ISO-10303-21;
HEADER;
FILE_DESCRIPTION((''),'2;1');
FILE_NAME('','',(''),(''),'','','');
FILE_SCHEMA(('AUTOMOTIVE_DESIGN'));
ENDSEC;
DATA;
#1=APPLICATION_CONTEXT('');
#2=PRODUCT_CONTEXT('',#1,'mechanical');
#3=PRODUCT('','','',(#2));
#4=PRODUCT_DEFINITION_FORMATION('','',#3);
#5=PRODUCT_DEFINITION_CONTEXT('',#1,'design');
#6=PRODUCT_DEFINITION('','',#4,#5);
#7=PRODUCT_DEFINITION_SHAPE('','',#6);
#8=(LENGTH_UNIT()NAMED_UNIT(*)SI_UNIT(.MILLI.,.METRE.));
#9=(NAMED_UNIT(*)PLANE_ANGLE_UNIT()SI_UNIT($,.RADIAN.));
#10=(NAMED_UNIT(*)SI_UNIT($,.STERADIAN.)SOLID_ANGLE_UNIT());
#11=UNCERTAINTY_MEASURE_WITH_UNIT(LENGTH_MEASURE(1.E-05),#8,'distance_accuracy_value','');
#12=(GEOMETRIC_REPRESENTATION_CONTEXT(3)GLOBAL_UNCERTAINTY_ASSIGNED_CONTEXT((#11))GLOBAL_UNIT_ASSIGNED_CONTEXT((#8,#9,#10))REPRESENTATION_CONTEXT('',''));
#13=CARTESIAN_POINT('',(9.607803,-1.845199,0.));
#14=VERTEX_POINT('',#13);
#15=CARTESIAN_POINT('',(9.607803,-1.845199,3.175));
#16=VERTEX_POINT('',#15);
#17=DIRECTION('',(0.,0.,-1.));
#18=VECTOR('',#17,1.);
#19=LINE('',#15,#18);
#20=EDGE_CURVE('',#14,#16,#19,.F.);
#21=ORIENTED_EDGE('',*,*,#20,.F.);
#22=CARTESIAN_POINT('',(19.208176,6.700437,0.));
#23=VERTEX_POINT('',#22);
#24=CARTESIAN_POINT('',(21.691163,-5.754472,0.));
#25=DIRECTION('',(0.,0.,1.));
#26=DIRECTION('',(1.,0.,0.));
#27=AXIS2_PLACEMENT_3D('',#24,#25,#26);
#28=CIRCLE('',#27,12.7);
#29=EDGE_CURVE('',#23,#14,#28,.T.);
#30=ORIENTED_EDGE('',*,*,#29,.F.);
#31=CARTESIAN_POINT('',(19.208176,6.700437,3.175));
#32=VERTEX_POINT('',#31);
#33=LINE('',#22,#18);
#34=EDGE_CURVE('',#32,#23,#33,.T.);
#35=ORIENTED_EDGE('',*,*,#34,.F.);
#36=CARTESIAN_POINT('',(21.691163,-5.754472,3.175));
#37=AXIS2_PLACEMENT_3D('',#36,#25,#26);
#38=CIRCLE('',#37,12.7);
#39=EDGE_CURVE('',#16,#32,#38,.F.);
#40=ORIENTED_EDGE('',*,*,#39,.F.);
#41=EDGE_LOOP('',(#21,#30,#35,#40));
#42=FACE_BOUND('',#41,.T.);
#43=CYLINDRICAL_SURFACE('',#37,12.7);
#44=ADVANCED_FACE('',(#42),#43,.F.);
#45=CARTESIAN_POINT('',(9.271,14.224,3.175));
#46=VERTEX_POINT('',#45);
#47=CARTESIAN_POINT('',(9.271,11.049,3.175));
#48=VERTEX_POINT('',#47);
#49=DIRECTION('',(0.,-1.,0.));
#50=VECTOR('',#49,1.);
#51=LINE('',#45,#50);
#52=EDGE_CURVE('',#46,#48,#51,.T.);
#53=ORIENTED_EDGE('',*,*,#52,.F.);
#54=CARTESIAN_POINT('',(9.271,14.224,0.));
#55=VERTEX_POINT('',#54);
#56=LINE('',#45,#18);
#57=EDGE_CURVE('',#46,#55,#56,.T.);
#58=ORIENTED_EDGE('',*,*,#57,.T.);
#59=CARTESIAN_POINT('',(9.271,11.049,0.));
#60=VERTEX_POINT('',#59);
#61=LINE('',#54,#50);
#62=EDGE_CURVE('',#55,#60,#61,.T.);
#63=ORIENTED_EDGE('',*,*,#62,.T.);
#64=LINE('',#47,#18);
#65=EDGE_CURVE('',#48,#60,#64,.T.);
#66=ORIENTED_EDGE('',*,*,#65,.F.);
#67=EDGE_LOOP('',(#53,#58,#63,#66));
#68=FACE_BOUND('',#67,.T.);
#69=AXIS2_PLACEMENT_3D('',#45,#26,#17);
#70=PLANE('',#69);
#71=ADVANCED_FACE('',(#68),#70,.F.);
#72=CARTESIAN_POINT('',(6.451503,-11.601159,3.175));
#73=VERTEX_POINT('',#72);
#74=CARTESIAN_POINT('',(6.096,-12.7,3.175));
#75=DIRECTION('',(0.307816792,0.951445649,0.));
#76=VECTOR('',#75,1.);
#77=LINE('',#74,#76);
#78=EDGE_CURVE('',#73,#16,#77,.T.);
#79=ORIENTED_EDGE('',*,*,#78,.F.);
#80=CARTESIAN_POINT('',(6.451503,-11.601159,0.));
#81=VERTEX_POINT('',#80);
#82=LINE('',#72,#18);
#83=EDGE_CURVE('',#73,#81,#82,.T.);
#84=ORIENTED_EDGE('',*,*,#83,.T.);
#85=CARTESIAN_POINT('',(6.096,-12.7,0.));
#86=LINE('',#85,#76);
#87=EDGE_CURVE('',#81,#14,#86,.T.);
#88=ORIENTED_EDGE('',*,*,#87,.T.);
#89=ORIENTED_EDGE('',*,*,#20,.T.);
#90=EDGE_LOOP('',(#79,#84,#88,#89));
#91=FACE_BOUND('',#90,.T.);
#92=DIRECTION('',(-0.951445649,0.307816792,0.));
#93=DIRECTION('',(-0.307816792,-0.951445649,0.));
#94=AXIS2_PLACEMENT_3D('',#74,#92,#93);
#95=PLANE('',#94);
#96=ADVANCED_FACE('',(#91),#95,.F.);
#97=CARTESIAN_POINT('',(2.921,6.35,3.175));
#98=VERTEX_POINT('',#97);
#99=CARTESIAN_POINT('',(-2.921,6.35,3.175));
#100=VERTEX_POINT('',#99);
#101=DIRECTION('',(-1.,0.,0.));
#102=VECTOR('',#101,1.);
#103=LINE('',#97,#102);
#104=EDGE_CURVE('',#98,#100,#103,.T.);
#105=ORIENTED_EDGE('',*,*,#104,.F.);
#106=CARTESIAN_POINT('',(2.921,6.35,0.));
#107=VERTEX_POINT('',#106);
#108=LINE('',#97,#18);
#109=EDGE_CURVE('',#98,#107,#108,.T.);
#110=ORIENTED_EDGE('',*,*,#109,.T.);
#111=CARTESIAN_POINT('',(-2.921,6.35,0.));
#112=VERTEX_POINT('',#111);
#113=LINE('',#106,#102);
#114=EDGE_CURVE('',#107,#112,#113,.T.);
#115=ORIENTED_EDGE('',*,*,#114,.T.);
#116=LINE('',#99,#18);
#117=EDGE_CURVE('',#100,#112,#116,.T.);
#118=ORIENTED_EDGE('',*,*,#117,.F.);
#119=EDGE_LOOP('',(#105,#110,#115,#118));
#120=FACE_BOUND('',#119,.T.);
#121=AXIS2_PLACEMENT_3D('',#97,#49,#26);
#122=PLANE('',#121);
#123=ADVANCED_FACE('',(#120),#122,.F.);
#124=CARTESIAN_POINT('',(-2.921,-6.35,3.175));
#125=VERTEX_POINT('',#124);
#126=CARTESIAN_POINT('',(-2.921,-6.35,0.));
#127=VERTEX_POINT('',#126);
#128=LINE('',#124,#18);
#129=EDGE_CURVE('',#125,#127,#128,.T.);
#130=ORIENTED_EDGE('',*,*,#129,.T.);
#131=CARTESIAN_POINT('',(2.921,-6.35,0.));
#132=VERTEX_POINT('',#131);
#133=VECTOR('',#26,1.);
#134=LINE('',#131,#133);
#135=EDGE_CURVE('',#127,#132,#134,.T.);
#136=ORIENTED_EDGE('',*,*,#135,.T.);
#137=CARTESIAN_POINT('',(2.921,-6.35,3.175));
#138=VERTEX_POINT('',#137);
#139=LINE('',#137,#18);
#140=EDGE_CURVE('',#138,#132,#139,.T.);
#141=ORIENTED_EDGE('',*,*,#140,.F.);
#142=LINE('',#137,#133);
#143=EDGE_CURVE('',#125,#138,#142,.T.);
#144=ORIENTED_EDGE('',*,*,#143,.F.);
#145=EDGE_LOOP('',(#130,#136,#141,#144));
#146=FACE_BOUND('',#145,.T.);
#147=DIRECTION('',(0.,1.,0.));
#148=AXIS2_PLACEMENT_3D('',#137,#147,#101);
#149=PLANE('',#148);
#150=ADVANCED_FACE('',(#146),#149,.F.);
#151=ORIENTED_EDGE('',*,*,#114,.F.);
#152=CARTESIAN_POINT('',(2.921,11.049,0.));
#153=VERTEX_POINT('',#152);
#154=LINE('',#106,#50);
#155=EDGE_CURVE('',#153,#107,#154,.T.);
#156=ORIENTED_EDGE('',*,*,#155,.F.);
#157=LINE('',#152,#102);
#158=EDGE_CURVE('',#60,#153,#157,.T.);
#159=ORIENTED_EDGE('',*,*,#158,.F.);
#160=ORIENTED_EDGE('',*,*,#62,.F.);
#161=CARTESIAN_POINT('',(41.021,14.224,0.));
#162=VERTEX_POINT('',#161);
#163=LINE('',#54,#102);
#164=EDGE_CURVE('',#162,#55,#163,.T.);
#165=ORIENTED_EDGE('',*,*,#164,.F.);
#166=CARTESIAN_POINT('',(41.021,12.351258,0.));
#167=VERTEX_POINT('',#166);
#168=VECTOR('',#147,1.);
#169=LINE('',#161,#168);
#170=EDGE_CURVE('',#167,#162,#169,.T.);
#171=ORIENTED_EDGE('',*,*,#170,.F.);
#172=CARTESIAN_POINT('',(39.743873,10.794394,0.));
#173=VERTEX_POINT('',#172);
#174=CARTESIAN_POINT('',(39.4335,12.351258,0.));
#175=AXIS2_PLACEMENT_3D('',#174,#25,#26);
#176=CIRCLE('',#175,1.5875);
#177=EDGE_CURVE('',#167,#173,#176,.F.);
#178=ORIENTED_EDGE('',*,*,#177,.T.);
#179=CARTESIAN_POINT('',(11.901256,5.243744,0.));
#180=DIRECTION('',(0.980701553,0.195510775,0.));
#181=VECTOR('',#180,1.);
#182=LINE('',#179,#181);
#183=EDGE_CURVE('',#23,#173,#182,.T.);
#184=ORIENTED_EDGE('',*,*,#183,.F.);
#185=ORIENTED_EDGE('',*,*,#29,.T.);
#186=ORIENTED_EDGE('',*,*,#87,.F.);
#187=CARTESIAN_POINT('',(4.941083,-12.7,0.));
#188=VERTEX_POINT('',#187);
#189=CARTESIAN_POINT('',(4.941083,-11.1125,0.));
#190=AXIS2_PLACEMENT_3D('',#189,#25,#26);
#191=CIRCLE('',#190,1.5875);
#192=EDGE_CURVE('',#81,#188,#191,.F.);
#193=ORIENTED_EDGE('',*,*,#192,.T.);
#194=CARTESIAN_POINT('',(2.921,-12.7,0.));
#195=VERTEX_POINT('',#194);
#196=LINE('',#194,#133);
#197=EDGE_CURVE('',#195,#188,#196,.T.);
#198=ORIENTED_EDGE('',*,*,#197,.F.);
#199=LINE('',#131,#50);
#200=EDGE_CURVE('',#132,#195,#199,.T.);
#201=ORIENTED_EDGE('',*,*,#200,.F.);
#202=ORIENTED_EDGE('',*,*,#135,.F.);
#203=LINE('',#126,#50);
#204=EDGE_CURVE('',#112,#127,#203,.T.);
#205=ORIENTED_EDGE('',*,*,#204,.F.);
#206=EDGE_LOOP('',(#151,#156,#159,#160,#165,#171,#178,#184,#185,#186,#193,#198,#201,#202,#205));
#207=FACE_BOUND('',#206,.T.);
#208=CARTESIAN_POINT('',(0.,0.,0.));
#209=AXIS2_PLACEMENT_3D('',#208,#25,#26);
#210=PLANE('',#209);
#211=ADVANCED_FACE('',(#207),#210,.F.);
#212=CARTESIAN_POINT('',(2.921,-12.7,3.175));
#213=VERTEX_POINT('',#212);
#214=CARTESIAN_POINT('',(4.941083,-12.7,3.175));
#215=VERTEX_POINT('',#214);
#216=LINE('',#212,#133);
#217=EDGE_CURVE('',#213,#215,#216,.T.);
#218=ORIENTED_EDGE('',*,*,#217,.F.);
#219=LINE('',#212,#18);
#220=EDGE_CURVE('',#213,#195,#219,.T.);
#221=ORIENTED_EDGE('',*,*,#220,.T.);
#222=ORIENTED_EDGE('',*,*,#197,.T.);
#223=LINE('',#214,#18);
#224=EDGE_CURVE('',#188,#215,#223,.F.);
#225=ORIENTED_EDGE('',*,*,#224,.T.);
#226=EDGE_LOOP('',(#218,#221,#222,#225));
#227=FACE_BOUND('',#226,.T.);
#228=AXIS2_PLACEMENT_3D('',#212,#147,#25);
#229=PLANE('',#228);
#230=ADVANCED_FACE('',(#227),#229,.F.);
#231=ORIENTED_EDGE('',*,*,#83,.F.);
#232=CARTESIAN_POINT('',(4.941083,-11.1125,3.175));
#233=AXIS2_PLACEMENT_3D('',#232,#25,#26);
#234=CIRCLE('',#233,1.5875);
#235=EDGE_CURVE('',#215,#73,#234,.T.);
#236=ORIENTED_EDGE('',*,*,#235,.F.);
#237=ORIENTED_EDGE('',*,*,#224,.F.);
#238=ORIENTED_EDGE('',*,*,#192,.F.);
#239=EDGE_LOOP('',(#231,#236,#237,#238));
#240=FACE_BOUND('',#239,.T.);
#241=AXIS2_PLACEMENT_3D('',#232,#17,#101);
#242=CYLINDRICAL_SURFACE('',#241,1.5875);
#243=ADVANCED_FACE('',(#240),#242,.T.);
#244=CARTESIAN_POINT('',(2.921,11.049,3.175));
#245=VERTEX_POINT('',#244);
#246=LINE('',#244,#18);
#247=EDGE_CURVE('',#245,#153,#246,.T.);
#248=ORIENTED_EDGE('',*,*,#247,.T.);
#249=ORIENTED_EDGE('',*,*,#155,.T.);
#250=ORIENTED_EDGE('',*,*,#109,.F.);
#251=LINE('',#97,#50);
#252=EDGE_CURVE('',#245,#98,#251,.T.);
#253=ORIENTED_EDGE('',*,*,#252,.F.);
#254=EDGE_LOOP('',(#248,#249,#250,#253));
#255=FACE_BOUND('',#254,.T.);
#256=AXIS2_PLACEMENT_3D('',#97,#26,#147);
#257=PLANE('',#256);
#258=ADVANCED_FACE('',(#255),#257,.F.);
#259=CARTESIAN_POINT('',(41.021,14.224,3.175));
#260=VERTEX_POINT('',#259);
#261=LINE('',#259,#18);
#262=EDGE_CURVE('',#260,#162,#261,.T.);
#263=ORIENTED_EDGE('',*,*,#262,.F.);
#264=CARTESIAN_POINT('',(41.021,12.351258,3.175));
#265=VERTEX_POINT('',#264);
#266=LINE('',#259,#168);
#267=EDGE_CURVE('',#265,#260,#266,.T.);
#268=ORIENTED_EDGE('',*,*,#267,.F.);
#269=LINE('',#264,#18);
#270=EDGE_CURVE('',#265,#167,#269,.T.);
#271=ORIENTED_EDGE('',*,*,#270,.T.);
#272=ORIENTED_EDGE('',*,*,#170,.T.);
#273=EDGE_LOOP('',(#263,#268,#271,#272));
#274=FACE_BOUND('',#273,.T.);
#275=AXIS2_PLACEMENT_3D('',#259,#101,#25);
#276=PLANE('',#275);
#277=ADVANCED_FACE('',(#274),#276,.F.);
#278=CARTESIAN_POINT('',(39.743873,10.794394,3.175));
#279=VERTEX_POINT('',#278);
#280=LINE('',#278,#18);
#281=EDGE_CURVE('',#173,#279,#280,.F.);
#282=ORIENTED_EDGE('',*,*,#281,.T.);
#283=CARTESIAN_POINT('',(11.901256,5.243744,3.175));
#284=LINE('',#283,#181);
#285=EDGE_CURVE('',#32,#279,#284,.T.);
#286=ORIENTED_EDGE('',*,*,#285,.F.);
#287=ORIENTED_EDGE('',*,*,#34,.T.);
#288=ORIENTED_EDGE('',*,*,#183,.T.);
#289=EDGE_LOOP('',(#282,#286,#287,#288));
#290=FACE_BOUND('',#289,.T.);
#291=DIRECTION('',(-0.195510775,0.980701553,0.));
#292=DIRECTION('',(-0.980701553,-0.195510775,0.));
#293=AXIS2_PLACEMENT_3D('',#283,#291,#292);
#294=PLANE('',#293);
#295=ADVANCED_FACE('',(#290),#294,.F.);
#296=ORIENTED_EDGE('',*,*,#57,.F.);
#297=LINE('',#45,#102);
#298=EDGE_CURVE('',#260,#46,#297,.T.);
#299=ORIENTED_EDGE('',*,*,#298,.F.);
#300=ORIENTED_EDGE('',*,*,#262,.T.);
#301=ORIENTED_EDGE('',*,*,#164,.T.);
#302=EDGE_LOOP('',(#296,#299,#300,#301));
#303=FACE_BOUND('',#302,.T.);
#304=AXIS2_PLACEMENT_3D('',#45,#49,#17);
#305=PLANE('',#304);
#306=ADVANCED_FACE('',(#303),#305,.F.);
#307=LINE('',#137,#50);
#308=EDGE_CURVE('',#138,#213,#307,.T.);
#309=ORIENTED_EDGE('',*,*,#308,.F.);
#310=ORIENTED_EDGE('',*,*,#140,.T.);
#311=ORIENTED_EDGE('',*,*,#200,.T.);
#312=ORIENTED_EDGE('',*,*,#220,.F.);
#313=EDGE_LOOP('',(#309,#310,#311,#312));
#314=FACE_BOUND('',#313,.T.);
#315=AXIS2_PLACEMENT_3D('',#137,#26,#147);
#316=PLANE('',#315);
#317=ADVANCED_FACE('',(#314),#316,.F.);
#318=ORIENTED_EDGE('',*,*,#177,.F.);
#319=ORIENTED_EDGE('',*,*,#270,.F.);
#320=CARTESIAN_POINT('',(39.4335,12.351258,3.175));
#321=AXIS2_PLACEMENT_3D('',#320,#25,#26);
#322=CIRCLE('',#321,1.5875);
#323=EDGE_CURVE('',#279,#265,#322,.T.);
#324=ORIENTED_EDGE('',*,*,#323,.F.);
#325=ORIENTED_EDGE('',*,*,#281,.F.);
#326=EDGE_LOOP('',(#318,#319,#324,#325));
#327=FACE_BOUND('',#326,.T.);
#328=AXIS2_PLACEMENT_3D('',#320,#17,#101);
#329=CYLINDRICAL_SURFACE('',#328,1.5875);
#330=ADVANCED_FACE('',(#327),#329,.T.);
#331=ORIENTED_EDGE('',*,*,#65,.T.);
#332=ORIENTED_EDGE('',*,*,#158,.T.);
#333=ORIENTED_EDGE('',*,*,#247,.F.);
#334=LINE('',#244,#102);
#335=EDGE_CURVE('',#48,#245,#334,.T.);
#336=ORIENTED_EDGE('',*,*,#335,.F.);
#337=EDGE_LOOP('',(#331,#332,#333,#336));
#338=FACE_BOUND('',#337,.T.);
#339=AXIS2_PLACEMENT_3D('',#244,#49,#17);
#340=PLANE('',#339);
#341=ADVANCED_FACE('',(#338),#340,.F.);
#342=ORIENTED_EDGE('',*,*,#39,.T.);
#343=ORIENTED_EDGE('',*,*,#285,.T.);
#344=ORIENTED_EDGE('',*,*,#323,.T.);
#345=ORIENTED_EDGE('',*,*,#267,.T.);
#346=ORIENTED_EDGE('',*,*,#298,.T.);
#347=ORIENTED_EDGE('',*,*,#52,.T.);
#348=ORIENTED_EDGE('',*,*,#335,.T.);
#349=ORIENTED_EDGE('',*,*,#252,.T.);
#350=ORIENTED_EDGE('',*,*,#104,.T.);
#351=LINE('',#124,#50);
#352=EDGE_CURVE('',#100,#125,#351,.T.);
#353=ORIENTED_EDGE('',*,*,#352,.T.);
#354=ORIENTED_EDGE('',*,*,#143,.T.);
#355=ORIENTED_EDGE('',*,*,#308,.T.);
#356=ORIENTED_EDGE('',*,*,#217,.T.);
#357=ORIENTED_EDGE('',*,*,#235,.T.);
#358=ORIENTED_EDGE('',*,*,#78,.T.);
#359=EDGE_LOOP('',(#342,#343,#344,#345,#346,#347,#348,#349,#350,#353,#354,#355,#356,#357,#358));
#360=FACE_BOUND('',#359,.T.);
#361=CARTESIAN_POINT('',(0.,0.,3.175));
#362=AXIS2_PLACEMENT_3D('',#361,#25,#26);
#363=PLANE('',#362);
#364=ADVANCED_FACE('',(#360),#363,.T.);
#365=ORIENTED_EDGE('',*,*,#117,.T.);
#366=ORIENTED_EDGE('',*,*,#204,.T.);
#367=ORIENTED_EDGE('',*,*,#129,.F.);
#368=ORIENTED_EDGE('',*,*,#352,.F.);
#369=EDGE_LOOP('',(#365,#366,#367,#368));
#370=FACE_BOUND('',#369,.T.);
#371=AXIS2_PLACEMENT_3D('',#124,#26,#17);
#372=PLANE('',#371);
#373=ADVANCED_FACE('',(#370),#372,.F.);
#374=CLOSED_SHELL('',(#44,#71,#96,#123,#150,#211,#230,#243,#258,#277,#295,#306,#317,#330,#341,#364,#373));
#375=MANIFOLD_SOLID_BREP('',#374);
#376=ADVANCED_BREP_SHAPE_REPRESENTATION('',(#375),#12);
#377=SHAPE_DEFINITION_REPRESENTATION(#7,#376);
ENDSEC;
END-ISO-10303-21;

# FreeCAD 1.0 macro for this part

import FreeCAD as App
import Part
import Sketcher
Q = App.Units.Quantity


def edges_at(feature, points):
    """Names of the edges that pass closest to the given points."""
    edges = feature.Shape.Edges
    near = lambda p: min(range(len(edges)), key=lambda i: edges[i].distToShape(Part.Vertex(*p))[0])
    return sorted({f"Edge{near(p) + 1}" for p in points})


def add_polygon(sketch, points):
    """Adds a closed chain of lines whose ends are joined by coincident constraints."""
    first, n = sketch.GeometryCount, len(points)
    for a, b in zip(points, points[1:] + points[:1]):
        sketch.addGeometry(Part.LineSegment(App.Vector(*a, 0), App.Vector(*b, 0)), False)
    for i in range(n):
        sketch.addConstraint(Sketcher.Constraint("Coincident", first + i, 2, first + (i + 1) % n, 1))

doc = App.newDocument("Part")
params = doc.addObject("Spreadsheet::Sheet", "Params")
for row, (alias, value) in enumerate([
    ("sketch1_height", "0.5 in"),
    ("sketch1_width", "0.23 in"),
    ("sketch1_width2", "1.25 in"),
    ("sketch1_width3", "0.25 in"),
    ("sketch1_width4", "0.125 in"),
    ("pad1_length", "0.125 in"),
    ("fillet_radius", "0.5 in"),
    ("fillet2_radius", "0.0625 in"),
], start=1):
    params.set(f"A{row}", alias)
    params.set(f"B{row}", "=" + value)
    params.setAlias(f"B{row}", alias)

body = doc.addObject("PartDesign::Body", "Body")

sketch1 = doc.addObject("Sketcher::SketchObject", "Sketch")
body.addObject(sketch1)
sketch1.AttachmentSupport = (doc.XY_Plane, [""])
sketch1.MapMode = "FlatFace"
add_polygon(sketch1, [(2.9, 11), (2.9, 6.3), (-2.9, 6.3), (-2.9, -6.3), (2.9, -6.3), (2.9, -12.7), (6.1, -12.7), (11.9, 5.2), (41, 11), (41, 14.2), (9.3, 14.2), (9.3, 11)])
sketch1.addConstraint([
    Sketcher.Constraint("Vertical", 0),
    Sketcher.Constraint("Horizontal", 1),
    Sketcher.Constraint("Vertical", 2),
    Sketcher.Constraint("Horizontal", 3),
    Sketcher.Constraint("Vertical", 4),
    Sketcher.Constraint("Horizontal", 5),
    Sketcher.Constraint("Vertical", 8),
    Sketcher.Constraint("Horizontal", 9),
    Sketcher.Constraint("Vertical", 10),
    Sketcher.Constraint("Horizontal", 11),
    Sketcher.Constraint("Symmetric", 0, 2, 2, 2, -1, 1),
    Sketcher.Constraint("Horizontal", 7, 2, 10, 2),
    Sketcher.Constraint("Vertical", 0, 2, 3, 2),
    Sketcher.Constraint("Equal", 11, 4),
    Sketcher.Constraint("Equal", 5, 8),
    Sketcher.Constraint("DistanceY", 2, 2, 2, 1, Q("0.5 in")),
    Sketcher.Constraint("DistanceX", 1, 2, 1, 1, Q("0.23 in")),
    Sketcher.Constraint("DistanceX", 9, 2, 9, 1, Q("1.25 in")),
    Sketcher.Constraint("DistanceX", 11, 2, 11, 1, Q("0.25 in")),
    Sketcher.Constraint("DistanceX", 5, 1, 5, 2, Q("0.125 in")),
    Sketcher.Constraint("DistanceY", 0, 2, 0, 1, Q("0.185 in")),
    Sketcher.Constraint("Distance", 7, 29.692768),
    Sketcher.Constraint("Distance", 6, 18.859452),
])
sketch1.setExpression("Constraints[27]", "Params.sketch1_height")
sketch1.setExpression("Constraints[28]", "Params.sketch1_width")
sketch1.setExpression("Constraints[29]", "Params.sketch1_width2")
sketch1.setExpression("Constraints[30]", "Params.sketch1_width3")
sketch1.setExpression("Constraints[31]", "Params.sketch1_width4")
pad1 = doc.addObject("PartDesign::Pad", "Pad")
body.addObject(pad1)
pad1.Profile = sketch1
pad1.setExpression("Length", "Params.pad1_length")
doc.recompute()

fillet = doc.addObject("PartDesign::Fillet", "Fillet")
body.addObject(fillet)
fillet.Base = (pad1, edges_at(pad1, [(11.901, 5.244, 1.587)]))
fillet.setExpression("Radius", "Params.fillet_radius")
doc.recompute()

fillet2 = doc.addObject("PartDesign::Fillet", "Fillet001")
body.addObject(fillet2)
fillet2.Base = (fillet, edges_at(fillet, [(41.021, 11.049, 1.587), (6.096, -12.7, 1.587)]))
fillet2.setExpression("Radius", "Params.fillet2_radius")

doc.recompute()
